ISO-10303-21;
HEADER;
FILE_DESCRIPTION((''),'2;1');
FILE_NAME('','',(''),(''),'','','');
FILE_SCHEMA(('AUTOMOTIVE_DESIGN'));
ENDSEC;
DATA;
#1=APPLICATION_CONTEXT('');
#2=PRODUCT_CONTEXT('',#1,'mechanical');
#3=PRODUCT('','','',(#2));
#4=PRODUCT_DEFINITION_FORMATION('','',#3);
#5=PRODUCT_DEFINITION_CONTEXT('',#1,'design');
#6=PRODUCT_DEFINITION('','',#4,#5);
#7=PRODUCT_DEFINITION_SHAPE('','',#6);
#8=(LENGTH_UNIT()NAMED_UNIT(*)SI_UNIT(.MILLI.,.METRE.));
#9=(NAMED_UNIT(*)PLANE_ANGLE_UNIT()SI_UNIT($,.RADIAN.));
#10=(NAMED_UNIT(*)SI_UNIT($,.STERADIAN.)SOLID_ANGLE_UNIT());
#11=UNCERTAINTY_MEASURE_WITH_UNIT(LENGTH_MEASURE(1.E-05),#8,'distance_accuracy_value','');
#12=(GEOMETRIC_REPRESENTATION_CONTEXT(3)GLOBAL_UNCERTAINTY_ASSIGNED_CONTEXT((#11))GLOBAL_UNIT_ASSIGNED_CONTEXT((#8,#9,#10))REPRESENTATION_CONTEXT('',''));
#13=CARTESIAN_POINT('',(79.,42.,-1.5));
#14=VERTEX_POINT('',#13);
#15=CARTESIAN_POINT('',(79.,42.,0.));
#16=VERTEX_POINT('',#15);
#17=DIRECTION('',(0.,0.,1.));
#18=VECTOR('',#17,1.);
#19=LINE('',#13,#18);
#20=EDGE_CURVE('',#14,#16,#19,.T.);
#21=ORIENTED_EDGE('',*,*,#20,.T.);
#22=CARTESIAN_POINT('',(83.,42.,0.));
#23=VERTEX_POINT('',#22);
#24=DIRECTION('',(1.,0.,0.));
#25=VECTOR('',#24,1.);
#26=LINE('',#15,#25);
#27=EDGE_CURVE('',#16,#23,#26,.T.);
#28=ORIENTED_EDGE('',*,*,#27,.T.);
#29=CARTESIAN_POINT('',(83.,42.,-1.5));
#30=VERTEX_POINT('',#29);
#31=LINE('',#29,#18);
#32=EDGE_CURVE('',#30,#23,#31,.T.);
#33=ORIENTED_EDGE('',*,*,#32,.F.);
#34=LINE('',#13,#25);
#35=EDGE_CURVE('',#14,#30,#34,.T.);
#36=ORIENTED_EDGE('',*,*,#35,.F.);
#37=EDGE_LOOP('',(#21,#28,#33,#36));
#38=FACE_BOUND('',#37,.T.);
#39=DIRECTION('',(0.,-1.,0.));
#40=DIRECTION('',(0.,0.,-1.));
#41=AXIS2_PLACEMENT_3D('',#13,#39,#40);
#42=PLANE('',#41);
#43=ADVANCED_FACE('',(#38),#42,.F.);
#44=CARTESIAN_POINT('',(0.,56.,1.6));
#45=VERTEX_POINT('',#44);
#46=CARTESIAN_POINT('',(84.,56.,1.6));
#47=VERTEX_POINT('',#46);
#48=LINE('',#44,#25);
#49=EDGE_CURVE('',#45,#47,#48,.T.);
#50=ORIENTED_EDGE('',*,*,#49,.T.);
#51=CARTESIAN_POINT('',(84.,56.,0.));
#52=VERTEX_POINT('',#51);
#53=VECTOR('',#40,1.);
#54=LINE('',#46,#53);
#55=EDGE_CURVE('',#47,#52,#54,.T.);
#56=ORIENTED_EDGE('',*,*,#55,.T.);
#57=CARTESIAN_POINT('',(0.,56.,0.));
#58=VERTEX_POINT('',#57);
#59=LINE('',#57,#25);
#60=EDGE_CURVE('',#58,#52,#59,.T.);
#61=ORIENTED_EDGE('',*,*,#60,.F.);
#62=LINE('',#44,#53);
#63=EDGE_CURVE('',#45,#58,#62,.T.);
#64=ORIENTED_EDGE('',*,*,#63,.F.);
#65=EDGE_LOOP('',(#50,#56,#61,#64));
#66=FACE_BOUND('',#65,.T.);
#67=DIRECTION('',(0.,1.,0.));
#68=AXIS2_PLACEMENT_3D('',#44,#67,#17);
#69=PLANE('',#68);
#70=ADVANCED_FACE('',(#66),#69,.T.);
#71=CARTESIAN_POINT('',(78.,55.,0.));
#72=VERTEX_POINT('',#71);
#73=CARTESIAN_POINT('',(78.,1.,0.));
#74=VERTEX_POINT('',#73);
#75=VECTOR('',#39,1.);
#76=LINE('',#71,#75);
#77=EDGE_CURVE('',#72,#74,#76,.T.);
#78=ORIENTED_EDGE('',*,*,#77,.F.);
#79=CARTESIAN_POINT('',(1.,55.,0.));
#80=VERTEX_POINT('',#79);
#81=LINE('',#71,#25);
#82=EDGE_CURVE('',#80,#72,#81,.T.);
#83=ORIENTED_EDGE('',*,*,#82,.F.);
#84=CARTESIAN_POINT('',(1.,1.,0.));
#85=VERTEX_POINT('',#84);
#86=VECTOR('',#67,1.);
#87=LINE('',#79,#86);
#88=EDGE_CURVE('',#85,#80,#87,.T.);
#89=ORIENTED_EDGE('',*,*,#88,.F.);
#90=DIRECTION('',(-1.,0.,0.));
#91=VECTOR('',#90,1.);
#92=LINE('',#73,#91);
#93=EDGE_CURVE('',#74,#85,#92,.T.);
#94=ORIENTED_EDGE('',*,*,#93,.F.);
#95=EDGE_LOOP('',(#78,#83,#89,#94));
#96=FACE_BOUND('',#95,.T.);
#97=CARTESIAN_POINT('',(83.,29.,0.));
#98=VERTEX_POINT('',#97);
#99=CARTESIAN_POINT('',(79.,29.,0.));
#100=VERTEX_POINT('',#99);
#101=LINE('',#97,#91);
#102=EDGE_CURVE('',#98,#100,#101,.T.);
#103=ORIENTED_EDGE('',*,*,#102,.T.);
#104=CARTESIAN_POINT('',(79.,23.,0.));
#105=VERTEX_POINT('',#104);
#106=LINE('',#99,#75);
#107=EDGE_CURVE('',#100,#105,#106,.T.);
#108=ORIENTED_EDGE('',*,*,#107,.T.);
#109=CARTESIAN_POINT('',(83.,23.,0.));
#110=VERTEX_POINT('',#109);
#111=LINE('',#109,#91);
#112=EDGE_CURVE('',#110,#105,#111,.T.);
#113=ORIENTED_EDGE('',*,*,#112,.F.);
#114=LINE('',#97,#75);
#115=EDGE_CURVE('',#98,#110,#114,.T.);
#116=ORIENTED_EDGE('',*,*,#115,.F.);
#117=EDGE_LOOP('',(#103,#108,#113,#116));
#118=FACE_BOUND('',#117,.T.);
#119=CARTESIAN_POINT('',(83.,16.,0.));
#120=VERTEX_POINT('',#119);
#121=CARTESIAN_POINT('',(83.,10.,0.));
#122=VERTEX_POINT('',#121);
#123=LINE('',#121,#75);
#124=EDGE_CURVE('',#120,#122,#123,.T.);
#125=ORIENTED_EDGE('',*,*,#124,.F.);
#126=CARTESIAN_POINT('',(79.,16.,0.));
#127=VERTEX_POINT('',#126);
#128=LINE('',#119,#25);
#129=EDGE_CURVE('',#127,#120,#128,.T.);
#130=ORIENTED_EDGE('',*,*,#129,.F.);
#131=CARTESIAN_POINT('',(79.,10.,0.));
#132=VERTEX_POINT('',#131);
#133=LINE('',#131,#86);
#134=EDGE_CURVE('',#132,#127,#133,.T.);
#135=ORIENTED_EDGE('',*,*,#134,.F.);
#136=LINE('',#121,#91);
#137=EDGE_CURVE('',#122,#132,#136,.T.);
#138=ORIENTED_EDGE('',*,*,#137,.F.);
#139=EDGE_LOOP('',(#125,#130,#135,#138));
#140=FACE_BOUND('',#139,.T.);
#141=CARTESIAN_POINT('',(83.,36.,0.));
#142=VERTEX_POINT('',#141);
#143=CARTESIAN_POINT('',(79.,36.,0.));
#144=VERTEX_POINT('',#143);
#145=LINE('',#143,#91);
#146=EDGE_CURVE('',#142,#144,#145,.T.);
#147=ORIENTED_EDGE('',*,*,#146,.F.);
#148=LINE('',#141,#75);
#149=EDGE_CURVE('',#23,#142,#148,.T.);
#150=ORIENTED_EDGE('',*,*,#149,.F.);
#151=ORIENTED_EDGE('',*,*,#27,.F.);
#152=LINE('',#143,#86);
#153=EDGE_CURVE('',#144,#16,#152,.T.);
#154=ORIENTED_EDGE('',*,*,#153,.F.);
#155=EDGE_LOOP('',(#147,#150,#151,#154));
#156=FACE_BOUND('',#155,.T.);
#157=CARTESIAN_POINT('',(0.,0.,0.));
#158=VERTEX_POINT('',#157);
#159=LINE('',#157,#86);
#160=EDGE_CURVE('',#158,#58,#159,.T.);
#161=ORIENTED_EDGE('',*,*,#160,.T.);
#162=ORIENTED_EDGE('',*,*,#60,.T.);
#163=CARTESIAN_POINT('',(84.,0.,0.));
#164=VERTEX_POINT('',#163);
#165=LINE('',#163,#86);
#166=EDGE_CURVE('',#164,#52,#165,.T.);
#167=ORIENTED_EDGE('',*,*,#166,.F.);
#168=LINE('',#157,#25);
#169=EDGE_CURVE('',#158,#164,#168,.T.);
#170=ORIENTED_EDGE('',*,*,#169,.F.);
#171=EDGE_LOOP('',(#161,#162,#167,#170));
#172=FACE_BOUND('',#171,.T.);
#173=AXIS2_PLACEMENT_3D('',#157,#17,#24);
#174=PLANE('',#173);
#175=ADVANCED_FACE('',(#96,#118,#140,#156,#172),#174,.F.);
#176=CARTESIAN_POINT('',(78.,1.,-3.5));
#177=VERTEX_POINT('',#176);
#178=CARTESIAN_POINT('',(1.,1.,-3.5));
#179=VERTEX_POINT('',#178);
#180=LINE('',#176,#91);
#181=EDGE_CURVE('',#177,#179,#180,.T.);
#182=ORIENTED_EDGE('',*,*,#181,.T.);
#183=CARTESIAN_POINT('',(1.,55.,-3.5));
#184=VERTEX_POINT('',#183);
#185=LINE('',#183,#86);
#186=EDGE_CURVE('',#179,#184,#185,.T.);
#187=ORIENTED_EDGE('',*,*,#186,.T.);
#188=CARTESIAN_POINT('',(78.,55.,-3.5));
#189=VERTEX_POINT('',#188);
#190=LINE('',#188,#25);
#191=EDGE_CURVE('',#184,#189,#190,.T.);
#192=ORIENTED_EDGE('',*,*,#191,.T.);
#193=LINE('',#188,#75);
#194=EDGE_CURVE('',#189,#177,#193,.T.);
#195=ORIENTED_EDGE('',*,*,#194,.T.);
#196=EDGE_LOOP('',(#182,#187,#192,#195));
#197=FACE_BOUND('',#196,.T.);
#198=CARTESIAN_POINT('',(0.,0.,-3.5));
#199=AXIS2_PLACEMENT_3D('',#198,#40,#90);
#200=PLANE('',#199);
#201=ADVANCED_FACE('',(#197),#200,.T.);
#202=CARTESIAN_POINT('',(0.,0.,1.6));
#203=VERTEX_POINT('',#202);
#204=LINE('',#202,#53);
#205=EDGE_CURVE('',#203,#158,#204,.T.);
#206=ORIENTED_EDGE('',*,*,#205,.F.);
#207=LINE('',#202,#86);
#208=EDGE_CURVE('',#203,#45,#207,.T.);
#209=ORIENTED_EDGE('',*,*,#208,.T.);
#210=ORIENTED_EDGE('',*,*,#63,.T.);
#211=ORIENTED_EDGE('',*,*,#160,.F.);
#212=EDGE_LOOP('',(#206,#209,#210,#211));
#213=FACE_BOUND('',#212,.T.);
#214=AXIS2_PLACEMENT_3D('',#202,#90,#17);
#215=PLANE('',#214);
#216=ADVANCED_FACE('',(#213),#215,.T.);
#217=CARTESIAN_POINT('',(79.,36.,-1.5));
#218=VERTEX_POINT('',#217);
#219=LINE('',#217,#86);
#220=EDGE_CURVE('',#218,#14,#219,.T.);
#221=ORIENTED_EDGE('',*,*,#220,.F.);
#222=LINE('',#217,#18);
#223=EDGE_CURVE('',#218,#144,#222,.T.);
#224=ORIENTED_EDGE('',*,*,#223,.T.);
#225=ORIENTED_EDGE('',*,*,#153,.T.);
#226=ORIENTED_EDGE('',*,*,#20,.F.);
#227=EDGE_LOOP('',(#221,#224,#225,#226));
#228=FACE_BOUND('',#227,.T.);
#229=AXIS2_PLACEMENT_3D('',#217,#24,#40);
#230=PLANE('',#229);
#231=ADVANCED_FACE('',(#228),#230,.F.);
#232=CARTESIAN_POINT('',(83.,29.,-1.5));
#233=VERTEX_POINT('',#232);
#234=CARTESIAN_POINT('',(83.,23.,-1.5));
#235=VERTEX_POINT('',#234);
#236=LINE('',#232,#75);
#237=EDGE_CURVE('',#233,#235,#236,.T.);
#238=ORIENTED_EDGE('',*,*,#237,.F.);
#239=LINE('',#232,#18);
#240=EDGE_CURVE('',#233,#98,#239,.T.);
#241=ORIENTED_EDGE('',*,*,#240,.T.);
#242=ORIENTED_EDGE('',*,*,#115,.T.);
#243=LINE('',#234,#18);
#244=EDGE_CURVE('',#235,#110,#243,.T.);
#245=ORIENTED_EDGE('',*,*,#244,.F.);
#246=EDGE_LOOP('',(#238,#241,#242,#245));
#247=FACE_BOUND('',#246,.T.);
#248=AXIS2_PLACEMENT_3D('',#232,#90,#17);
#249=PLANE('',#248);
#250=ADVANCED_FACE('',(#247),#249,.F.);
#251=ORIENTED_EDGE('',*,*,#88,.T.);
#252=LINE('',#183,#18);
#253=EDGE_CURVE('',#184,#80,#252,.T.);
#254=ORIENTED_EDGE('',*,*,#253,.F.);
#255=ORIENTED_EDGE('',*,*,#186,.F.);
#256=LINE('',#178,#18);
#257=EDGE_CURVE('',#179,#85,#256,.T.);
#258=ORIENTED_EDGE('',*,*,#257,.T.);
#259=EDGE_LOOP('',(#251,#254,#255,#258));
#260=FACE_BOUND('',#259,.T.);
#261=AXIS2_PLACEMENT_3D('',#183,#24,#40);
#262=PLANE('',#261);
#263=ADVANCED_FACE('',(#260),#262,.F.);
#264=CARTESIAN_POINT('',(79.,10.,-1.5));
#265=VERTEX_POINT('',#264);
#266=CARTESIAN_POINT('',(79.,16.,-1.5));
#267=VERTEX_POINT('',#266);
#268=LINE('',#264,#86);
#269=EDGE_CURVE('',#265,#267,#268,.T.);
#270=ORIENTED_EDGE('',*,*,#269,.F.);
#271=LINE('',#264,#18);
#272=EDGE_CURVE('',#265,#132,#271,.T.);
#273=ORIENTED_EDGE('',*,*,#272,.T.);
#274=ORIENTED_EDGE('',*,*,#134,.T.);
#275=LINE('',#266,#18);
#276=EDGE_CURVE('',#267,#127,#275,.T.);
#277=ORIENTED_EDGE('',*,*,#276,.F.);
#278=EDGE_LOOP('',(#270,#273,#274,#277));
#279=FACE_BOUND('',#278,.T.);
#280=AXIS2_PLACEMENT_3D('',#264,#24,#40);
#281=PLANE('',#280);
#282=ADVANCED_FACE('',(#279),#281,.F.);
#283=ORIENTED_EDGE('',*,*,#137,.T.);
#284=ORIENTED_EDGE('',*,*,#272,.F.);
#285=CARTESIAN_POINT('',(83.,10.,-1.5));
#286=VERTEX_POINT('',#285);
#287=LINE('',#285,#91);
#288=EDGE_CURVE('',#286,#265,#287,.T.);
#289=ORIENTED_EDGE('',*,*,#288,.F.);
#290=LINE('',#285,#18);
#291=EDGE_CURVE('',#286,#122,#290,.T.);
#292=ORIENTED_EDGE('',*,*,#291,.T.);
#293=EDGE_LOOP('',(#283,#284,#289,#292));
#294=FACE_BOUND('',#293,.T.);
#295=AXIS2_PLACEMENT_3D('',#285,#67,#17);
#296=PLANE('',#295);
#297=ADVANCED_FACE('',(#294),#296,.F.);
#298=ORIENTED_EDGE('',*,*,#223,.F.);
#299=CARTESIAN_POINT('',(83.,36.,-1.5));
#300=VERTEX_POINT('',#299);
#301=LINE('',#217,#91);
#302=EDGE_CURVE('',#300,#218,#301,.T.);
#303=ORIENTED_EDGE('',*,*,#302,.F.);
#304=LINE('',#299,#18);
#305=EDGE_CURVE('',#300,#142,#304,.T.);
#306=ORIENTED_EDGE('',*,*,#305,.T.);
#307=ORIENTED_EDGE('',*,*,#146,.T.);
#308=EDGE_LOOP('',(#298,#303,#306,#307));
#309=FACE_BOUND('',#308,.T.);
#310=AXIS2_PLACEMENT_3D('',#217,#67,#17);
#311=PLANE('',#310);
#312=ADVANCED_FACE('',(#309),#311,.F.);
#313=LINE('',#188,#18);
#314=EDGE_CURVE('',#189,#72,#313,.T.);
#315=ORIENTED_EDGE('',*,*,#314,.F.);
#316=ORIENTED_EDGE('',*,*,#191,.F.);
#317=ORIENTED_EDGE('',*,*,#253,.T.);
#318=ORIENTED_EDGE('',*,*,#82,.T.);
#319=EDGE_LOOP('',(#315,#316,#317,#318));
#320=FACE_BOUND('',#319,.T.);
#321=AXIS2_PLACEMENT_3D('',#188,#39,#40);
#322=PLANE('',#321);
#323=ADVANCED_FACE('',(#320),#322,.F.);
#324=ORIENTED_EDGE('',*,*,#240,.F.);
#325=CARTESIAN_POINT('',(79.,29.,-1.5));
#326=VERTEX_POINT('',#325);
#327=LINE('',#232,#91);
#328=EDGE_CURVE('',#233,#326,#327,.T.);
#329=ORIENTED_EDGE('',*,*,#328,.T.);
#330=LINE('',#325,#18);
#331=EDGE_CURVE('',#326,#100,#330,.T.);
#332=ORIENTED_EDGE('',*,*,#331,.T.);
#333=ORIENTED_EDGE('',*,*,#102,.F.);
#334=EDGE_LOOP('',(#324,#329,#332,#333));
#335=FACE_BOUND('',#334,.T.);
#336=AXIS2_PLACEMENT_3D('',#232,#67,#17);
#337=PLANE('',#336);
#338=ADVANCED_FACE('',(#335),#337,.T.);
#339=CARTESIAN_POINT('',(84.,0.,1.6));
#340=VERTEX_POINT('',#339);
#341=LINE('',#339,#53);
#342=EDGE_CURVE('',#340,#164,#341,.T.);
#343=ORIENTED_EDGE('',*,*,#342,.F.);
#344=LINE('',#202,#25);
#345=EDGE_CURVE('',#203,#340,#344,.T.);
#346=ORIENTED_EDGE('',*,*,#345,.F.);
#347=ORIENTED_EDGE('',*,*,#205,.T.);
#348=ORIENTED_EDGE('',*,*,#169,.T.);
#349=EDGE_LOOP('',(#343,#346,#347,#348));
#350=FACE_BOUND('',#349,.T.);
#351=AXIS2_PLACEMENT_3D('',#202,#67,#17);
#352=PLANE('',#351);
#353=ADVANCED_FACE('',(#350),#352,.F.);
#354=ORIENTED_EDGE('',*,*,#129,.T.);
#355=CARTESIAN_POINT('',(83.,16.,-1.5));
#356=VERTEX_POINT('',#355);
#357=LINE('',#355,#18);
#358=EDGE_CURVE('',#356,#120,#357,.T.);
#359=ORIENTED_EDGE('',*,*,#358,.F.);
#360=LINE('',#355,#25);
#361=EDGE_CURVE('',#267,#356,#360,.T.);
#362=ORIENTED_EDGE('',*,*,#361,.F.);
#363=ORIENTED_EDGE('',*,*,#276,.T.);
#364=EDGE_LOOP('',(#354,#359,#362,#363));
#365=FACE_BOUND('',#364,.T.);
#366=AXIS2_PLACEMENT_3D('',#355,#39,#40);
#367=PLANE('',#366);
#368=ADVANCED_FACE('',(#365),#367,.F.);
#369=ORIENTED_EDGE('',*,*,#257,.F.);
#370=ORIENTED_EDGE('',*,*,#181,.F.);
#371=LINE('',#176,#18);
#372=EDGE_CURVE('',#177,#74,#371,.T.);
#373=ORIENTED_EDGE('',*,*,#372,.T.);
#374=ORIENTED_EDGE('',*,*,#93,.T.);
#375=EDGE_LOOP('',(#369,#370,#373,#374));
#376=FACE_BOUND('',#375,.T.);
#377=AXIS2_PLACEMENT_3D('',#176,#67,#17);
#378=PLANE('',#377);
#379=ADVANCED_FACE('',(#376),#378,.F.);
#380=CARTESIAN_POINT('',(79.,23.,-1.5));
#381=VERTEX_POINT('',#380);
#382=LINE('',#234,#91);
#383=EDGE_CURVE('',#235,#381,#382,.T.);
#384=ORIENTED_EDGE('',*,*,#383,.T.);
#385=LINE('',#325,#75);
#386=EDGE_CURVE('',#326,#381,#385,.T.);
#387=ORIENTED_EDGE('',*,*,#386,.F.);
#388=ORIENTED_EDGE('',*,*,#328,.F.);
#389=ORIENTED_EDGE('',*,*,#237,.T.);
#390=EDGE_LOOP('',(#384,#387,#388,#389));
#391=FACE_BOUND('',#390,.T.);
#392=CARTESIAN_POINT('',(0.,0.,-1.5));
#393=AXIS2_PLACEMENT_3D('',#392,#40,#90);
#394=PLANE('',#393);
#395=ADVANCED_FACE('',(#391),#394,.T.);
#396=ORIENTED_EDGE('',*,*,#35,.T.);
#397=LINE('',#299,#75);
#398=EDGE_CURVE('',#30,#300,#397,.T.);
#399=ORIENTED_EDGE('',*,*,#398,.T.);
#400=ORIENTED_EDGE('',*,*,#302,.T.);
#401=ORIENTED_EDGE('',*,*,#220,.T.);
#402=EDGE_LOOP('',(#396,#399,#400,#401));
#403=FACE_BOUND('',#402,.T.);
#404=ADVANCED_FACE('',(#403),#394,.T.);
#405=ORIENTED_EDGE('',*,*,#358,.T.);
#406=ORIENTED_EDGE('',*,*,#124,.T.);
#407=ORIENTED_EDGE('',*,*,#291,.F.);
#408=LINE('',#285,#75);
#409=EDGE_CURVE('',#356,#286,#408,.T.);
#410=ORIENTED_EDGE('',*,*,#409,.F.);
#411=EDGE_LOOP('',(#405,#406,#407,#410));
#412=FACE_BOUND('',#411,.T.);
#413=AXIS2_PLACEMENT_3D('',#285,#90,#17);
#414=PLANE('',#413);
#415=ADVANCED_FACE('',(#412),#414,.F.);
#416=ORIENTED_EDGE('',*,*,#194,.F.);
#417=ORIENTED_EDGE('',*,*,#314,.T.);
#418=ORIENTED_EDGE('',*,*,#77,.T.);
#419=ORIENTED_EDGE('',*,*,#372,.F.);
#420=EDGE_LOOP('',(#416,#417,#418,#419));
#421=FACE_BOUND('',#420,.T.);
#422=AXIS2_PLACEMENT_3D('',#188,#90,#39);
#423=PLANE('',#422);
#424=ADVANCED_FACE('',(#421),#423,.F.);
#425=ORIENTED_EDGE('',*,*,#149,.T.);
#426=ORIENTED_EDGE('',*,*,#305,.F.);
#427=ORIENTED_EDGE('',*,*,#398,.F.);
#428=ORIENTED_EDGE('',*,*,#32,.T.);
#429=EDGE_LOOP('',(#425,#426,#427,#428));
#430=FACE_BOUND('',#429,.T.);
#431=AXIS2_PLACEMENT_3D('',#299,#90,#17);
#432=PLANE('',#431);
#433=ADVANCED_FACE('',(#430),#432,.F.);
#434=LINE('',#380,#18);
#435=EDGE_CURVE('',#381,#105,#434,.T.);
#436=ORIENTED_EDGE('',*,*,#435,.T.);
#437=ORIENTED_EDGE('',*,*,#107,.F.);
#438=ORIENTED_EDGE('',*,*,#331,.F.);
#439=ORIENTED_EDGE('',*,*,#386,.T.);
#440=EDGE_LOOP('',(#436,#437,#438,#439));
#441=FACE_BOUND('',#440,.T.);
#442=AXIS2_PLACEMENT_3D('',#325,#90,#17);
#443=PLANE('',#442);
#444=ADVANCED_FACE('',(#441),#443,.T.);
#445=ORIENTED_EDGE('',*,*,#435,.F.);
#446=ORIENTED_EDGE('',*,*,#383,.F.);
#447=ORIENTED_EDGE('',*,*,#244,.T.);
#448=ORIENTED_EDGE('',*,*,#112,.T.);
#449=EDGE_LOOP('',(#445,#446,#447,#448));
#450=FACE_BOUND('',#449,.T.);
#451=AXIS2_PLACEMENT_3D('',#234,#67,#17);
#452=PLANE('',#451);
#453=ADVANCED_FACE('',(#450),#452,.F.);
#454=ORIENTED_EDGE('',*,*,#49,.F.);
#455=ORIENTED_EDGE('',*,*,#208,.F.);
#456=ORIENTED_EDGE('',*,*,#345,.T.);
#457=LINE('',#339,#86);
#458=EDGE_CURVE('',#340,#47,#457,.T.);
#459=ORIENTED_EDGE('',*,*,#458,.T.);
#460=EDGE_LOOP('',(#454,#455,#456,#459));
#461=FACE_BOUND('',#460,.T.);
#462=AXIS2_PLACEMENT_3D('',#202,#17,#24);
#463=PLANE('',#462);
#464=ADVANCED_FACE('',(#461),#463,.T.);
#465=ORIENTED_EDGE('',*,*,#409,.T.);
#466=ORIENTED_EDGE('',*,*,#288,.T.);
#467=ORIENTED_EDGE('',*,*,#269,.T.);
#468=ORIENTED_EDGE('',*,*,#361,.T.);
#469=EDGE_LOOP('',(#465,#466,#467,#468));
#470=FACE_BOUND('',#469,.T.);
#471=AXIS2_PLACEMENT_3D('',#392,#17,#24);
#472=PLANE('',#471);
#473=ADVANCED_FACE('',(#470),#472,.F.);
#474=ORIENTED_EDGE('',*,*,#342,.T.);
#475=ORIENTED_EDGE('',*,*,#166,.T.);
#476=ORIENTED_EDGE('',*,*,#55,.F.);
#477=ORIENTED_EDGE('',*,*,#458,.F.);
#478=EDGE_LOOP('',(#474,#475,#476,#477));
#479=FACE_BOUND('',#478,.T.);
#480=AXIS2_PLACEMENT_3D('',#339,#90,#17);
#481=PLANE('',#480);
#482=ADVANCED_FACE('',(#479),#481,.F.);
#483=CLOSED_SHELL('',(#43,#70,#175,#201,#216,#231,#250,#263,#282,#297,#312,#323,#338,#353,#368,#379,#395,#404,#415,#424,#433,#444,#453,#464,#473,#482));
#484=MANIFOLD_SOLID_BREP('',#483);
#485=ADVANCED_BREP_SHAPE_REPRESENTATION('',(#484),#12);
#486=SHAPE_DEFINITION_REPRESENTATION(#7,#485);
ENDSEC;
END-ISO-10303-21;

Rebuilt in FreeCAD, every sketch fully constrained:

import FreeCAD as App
import Part
import Sketcher
from FreeCAD import Vector
Q = App.Units.Quantity


def add_polygon(sketch, points):
    """Adds a closed chain of lines whose ends are joined by coincident constraints."""
    first, n = sketch.GeometryCount, len(points)
    for a, b in zip(points, points[1:] + points[:1]):
        sketch.addGeometry(Part.LineSegment(App.Vector(*a, 0), App.Vector(*b, 0)), False)
    for i in range(n):
        sketch.addConstraint(Sketcher.Constraint("Coincident", first + i, 2, first + (i + 1) % n, 1))

doc = App.newDocument("Part")
body = doc.addObject("PartDesign::Body", "Body")

# Sketch on XY plane
sketch1 = doc.addObject("Sketcher::SketchObject", "Sketch")
body.addObject(sketch1)
sketch1.AttachmentSupport = (doc.XY_Plane, [""])
sketch1.MapMode = "FlatFace"
add_polygon(sketch1, [(0, 56), (0, 0), (84, 0), (84, 56)])  # lines 0-3
sketch1.addConstraint(Sketcher.Constraint("Vertical", 0))
sketch1.addConstraint(Sketcher.Constraint("Horizontal", 1))
sketch1.addConstraint(Sketcher.Constraint("Vertical", 2))
sketch1.addConstraint(Sketcher.Constraint("Horizontal", 3))
sketch1.addConstraint(Sketcher.Constraint("Coincident", 0, 2, -1, 1))
sketch1.addConstraint(Sketcher.Constraint("DistanceX", 1, 1, 1, 2, Q("84 mm")))
sketch1.addConstraint(Sketcher.Constraint("DistanceY", 0, 2, 0, 1, Q("56 mm")))
pad1 = doc.addObject("PartDesign::Pad", "Pad")
body.addObject(pad1)
pad1.Profile = sketch1
pad1.Length = 1.6

# Sketch on XY plane
sketch2 = doc.addObject("Sketcher::SketchObject", "Sketch001")
body.addObject(sketch2)
sketch2.AttachmentSupport = (doc.XY_Plane, [""])
sketch2.MapMode = "FlatFace"
add_polygon(sketch2, [(78, 55), (78, 1), (1, 1), (1, 55)])  # lines 0-3
sketch2.addConstraint(Sketcher.Constraint("Vertical", 0))
sketch2.addConstraint(Sketcher.Constraint("Horizontal", 1))
sketch2.addConstraint(Sketcher.Constraint("Vertical", 2))
sketch2.addConstraint(Sketcher.Constraint("Horizontal", 3))
sketch2.addConstraint(Sketcher.Constraint("DistanceX", 1, 2, 1, 1, Q("77 mm")))
sketch2.addConstraint(Sketcher.Constraint("DistanceY", 0, 2, 0, 1, Q("54 mm")))
sketch2.addConstraint(Sketcher.Constraint("DistanceX", -1, 1, 0, 2, Q("78 mm")))
sketch2.addConstraint(Sketcher.Constraint("DistanceY", -1, 1, 0, 2, Q("1 mm")))
pad2 = doc.addObject("PartDesign::Pad", "Pad001")
body.addObject(pad2)
pad2.Profile = sketch2
pad2.Length = 3.5
pad2.Reversed = True

# Sketch on XY plane
sketch3 = doc.addObject("Sketcher::SketchObject", "Sketch002")
body.addObject(sketch3)
sketch3.AttachmentSupport = (doc.XY_Plane, [""])
sketch3.MapMode = "FlatFace"
add_polygon(sketch3, [(83, 29), (83, 23), (79, 23), (79, 29)])  # lines 0-3
sketch3.addConstraint(Sketcher.Constraint("Vertical", 0))
sketch3.addConstraint(Sketcher.Constraint("Horizontal", 1))
sketch3.addConstraint(Sketcher.Constraint("Vertical", 2))
sketch3.addConstraint(Sketcher.Constraint("Horizontal", 3))
sketch3.addConstraint(Sketcher.Constraint("DistanceX", 1, 2, 1, 1, Q("4 mm")))
sketch3.addConstraint(Sketcher.Constraint("DistanceY", 0, 2, 0, 1, Q("6 mm")))
sketch3.addConstraint(Sketcher.Constraint("DistanceX", -1, 1, 0, 2, Q("83 mm")))
sketch3.addConstraint(Sketcher.Constraint("DistanceY", -1, 1, 0, 2, Q("23 mm")))
pad3 = doc.addObject("PartDesign::Pad", "Pad002")
body.addObject(pad3)
pad3.Profile = sketch3
pad3.Length = 1.5
pad3.Reversed = True

# Sketch on XY plane
sketch4 = doc.addObject("Sketcher::SketchObject", "Sketch003")
body.addObject(sketch4)
sketch4.AttachmentSupport = (doc.XY_Plane, [""])
sketch4.MapMode = "FlatFace"
add_polygon(sketch4, [(83, 42), (83, 36), (79, 36), (79, 42)])  # lines 0-3
sketch4.addConstraint(Sketcher.Constraint("Vertical", 0))
sketch4.addConstraint(Sketcher.Constraint("Horizontal", 1))
sketch4.addConstraint(Sketcher.Constraint("Vertical", 2))
sketch4.addConstraint(Sketcher.Constraint("Horizontal", 3))
sketch4.addConstraint(Sketcher.Constraint("DistanceX", 1, 2, 1, 1, Q("4 mm")))
sketch4.addConstraint(Sketcher.Constraint("DistanceY", 0, 2, 0, 1, Q("6 mm")))
sketch4.addConstraint(Sketcher.Constraint("DistanceX", -1, 1, 0, 2, Q("83 mm")))
sketch4.addConstraint(Sketcher.Constraint("DistanceY", -1, 1, 0, 2, Q("36 mm")))
pad4 = doc.addObject("PartDesign::Pad", "Pad003")
body.addObject(pad4)
pad4.Profile = sketch4
pad4.Length = 1.5
pad4.Reversed = True

# Sketch on XY plane
sketch5 = doc.addObject("Sketcher::SketchObject", "Sketch004")
body.addObject(sketch5)
sketch5.AttachmentSupport = (doc.XY_Plane, [""])
sketch5.MapMode = "FlatFace"
add_polygon(sketch5, [(83, 16), (83, 10), (79, 10), (79, 16)])  # lines 0-3
sketch5.addConstraint(Sketcher.Constraint("Vertical", 0))
sketch5.addConstraint(Sketcher.Constraint("Horizontal", 1))
sketch5.addConstraint(Sketcher.Constraint("Vertical", 2))
sketch5.addConstraint(Sketcher.Constraint("Horizontal", 3))
sketch5.addConstraint(Sketcher.Constraint("DistanceX", 1, 2, 1, 1, Q("4 mm")))
sketch5.addConstraint(Sketcher.Constraint("DistanceY", 0, 2, 0, 1, Q("6 mm")))
sketch5.addConstraint(Sketcher.Constraint("DistanceX", -1, 1, 0, 2, Q("83 mm")))
sketch5.addConstraint(Sketcher.Constraint("DistanceY", -1, 1, 0, 2, Q("10 mm")))
pad5 = doc.addObject("PartDesign::Pad", "Pad004")
body.addObject(pad5)
pad5.Profile = sketch5
pad5.Length = 1.5
pad5.Reversed = True

doc.recompute()
